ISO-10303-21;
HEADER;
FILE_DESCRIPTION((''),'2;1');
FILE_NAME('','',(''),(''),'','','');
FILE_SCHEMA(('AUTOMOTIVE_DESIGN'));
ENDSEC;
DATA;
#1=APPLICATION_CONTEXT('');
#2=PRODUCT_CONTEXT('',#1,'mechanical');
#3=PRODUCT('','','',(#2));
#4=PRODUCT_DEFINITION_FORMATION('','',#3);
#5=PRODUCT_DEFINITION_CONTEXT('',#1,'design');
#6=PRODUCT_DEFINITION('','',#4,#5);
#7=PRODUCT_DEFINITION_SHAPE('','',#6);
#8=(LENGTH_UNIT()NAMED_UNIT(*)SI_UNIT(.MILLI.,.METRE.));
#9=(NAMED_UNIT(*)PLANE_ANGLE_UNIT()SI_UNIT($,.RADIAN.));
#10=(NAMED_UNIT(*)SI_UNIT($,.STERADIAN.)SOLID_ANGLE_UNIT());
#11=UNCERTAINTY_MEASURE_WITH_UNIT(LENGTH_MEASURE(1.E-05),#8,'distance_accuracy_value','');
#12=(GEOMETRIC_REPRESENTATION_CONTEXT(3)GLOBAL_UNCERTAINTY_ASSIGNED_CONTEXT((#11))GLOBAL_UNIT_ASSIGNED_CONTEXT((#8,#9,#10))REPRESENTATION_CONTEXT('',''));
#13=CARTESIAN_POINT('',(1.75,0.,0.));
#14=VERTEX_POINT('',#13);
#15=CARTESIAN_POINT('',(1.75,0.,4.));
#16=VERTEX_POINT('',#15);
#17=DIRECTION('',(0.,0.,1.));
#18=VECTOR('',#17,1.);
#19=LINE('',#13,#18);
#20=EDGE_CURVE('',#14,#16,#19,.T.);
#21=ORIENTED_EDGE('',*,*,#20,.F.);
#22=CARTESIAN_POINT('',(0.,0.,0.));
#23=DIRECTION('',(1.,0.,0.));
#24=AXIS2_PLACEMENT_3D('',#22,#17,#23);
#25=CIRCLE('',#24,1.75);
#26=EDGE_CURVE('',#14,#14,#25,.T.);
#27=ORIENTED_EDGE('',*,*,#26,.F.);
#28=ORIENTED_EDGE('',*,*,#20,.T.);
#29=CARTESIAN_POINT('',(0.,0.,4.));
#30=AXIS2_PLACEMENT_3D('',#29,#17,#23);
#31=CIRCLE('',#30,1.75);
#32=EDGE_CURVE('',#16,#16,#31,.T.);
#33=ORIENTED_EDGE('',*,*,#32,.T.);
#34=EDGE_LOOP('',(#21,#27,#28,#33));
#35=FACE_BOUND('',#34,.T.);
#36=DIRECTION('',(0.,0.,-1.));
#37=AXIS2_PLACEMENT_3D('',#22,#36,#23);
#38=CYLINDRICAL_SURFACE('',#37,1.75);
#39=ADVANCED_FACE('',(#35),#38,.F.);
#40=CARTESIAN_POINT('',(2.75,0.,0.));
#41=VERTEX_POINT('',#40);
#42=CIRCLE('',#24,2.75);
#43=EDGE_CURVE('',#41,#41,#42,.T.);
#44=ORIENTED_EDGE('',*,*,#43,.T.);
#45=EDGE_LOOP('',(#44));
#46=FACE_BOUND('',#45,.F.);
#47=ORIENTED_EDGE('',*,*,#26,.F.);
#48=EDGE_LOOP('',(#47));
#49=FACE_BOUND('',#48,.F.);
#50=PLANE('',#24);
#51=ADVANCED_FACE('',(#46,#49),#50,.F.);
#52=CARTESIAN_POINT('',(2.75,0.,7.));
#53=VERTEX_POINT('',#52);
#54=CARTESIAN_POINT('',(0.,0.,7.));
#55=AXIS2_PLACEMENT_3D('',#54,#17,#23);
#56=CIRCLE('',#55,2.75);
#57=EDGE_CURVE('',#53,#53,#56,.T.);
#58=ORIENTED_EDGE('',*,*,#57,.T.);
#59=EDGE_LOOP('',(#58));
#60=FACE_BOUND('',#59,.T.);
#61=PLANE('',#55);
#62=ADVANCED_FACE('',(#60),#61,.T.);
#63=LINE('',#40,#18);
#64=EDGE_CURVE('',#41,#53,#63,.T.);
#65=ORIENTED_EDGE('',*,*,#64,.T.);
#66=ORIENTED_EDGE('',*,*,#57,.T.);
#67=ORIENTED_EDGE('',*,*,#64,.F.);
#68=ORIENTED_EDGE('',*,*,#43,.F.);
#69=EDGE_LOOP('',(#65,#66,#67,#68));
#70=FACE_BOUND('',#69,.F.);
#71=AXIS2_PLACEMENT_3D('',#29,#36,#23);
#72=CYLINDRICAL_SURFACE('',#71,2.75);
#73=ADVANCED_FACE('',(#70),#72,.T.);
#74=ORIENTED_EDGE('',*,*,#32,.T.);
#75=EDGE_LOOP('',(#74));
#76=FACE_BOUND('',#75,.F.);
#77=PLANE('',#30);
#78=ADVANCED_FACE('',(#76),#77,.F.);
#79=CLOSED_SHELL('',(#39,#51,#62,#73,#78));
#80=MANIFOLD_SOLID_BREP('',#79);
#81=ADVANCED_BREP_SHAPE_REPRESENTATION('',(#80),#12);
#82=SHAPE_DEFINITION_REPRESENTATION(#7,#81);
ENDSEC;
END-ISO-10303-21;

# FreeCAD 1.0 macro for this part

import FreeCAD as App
import Part
import Sketcher

doc = App.newDocument("Part")
body = doc.addObject("PartDesign::Body", "Body")

# Sketch on XY plane
sketch1 = body.newObject("Sketcher::SketchObject", "Sketch")
sketch1.AttachmentSupport = (doc.getObject("XY_Plane"), [""])
sketch1.MapMode = "FlatFace"
sketch1.addGeometry([
    Part.Circle(App.Vector(0, 0, 0), App.Vector(0, 0, 1), 2.75),
    Part.Circle(App.Vector(0, 0, 0), App.Vector(0, 0, 1), 1.75),
], False)
sketch1.addConstraint([
    Sketcher.Constraint("Coincident", 0, 3, -1, 1),
    Sketcher.Constraint("Coincident", 1, 3, -1, 1),
    Sketcher.Constraint("Diameter", 0, 5.5),
    Sketcher.Constraint("Diameter", 1, 3.5),
])
pad1 = body.newObject("PartDesign::Pad", "Pad")
pad1.Profile = sketch1
pad1.Length = 4

# Sketch on XY plane
sketch2 = body.newObject("Sketcher::SketchObject", "Sketch001")
sketch2.AttachmentSupport = (doc.getObject("XY_Plane"), [""])
sketch2.MapMode = "FlatFace"
sketch2.AttachmentOffset = App.Placement(App.Vector(0, 0, 4), App.Rotation())
sketch2.addGeometry(Part.Circle(App.Vector(0, 0, 0), App.Vector(0, 0, 1), 2.75), False)
sketch2.addConstraint([
    Sketcher.Constraint("Coincident", 0, 3, -1, 1),
    Sketcher.Constraint("Diameter", 0, 5.5),
])
pad2 = body.newObject("PartDesign::Pad", "Pad001")
pad2.Profile = sketch2
pad2.Length = 3

doc.recompute()
